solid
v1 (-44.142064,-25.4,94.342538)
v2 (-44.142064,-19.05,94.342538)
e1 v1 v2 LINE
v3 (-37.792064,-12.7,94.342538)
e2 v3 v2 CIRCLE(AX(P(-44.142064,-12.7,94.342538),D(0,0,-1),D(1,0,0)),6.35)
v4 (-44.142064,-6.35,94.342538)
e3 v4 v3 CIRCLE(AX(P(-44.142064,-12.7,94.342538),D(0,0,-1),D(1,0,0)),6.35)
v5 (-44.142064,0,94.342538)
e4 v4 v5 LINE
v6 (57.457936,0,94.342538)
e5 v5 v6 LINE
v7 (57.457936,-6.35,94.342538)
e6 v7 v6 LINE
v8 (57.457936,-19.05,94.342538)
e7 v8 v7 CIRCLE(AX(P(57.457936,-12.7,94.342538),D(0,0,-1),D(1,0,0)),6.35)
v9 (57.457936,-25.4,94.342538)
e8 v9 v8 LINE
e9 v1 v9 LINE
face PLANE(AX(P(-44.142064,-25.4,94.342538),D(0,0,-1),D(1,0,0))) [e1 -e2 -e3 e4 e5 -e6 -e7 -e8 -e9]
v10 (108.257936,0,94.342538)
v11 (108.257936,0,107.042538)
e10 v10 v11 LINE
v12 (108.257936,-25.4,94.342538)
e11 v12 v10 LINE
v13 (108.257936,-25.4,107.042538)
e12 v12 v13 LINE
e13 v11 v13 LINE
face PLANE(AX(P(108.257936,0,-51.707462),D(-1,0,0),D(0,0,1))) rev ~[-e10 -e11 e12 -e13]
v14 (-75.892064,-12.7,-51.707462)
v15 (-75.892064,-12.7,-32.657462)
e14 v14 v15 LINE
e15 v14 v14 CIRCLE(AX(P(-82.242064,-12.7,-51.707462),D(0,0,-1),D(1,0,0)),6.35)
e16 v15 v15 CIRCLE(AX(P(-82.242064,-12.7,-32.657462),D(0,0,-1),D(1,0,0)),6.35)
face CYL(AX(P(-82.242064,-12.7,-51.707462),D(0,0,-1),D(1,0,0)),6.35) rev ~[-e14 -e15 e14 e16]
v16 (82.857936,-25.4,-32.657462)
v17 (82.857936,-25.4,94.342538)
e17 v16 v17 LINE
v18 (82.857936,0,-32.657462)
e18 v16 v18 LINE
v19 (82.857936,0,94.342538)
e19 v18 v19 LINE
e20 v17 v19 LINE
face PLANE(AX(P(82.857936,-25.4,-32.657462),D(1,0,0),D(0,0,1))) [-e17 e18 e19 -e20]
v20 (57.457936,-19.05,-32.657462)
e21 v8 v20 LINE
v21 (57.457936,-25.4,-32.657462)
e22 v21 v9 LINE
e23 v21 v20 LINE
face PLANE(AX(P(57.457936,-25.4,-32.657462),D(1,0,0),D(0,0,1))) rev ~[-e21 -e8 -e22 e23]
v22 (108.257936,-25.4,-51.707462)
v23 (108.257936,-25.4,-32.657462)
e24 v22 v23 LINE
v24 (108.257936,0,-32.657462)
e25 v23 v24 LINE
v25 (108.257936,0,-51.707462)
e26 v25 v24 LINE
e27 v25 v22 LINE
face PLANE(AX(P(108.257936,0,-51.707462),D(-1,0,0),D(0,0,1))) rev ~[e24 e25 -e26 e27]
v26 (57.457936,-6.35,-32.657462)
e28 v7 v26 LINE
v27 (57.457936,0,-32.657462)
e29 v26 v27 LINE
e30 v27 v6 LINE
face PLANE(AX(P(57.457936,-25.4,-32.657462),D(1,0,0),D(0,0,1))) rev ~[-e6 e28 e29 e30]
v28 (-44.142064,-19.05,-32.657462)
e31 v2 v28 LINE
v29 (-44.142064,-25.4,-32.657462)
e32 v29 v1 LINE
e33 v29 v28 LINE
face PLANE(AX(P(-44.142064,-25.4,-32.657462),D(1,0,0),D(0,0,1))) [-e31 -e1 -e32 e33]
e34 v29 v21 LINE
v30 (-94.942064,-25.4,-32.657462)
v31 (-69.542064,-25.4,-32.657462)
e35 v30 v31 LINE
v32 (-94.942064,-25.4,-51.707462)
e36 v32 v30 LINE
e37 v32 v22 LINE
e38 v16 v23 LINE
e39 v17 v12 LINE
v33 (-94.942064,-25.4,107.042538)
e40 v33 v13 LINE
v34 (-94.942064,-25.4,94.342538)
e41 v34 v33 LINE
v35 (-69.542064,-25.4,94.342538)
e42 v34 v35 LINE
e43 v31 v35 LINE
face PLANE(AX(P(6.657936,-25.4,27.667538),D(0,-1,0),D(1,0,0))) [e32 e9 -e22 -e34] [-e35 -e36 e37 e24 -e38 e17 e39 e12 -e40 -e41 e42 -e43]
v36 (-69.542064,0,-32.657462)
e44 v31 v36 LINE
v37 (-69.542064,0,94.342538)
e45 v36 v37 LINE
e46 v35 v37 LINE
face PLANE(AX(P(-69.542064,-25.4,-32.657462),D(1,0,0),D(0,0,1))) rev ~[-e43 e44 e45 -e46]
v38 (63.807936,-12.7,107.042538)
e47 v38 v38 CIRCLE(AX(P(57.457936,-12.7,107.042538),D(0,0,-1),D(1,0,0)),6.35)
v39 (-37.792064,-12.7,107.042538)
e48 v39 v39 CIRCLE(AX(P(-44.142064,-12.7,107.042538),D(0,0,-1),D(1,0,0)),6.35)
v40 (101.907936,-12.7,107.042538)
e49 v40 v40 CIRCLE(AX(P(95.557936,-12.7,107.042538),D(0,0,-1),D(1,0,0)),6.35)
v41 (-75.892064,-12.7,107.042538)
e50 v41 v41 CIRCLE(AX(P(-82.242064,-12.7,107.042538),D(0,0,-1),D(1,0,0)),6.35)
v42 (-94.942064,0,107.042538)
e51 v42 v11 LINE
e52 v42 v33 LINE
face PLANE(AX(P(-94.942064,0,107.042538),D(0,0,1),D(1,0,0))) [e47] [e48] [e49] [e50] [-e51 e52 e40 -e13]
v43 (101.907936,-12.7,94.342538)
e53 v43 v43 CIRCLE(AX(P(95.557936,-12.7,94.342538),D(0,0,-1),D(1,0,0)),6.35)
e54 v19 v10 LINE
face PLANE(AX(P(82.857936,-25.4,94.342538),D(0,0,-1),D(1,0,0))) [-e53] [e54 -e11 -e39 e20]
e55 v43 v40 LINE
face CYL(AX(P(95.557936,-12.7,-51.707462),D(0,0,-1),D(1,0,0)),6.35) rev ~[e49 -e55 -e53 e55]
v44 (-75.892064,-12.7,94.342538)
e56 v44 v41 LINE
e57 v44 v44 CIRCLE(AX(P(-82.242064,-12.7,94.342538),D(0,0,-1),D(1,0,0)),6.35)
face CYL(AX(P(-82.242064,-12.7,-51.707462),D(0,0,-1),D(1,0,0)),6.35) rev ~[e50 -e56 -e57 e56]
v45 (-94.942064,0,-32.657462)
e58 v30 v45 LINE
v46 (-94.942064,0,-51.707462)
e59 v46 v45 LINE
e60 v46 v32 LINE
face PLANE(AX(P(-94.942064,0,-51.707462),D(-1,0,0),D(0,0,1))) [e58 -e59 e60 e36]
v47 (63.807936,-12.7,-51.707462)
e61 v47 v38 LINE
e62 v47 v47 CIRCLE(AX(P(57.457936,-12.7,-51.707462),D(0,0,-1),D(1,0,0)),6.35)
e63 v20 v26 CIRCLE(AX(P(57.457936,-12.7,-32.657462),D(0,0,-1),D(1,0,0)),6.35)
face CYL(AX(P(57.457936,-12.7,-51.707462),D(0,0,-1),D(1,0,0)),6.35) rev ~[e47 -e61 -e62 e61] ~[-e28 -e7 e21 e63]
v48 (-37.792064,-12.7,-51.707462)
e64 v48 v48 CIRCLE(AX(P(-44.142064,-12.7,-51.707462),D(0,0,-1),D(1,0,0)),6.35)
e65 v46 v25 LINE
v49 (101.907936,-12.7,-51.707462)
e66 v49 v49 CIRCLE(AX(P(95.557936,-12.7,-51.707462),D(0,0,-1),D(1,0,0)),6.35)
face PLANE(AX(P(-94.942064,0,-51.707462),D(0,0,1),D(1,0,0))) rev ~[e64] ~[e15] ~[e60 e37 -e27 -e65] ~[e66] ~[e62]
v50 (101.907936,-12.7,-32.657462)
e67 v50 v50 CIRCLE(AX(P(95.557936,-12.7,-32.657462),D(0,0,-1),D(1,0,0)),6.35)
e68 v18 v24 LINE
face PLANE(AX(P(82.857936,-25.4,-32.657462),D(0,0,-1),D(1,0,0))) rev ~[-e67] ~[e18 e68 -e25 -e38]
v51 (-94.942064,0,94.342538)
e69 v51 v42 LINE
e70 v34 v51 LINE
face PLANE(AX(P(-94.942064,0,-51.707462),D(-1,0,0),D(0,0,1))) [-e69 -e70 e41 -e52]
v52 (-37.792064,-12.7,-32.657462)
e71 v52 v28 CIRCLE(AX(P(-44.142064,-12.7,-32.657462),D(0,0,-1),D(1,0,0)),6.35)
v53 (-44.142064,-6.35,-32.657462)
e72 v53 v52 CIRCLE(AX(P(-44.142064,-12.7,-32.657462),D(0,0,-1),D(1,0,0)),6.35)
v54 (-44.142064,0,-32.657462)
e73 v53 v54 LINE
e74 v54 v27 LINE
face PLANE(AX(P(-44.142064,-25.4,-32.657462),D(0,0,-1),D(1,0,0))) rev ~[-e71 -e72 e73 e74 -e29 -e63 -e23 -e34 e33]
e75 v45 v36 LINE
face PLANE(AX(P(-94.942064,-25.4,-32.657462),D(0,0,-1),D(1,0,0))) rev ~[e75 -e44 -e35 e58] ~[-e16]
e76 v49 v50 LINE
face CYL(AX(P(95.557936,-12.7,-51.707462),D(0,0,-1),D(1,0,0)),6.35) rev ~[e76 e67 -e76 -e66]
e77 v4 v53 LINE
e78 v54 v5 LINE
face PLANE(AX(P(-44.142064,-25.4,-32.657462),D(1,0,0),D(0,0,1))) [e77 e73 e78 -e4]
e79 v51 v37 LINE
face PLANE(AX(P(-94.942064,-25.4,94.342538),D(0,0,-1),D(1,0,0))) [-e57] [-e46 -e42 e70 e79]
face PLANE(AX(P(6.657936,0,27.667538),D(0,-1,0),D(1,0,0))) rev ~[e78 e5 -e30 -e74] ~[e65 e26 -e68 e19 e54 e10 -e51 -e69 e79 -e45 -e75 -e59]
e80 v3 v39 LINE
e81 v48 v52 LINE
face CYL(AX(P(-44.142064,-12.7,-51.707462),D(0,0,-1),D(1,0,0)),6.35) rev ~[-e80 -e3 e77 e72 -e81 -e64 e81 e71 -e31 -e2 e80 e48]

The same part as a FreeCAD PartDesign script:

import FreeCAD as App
import Part
import Sketcher
Q = App.Units.Quantity


def add_polygon(sketch, points):
    """Adds a closed chain of lines whose ends are joined by coincident constraints."""
    first, n = sketch.GeometryCount, len(points)
    for a, b in zip(points, points[1:] + points[:1]):
        sketch.addGeometry(Part.LineSegment(App.Vector(*a, 0), App.Vector(*b, 0)), False)
    for i in range(n):
        sketch.addConstraint(Sketcher.Constraint("Coincident", first + i, 2, first + (i + 1) % n, 1))

doc = App.newDocument("Part")
body = doc.addObject("PartDesign::Body", "Body")

# Sketch on XZ plane
sketch1 = doc.addObject("Sketcher::SketchObject", "Sketch")
body.addObject(sketch1)
sketch1.AttachmentSupport = (doc.XZ_Plane, [""])
sketch1.MapMode = "FlatFace"
add_polygon(sketch1, [(-94.942064, 107.042538), (-94.942064, -51.707462), (108.257936, -51.707462), (108.257936, 107.042538)])  # lines 0-3
sketch1.addConstraint([
    Sketcher.Constraint("Vertical", 0),
    Sketcher.Constraint("Horizontal", 1),
    Sketcher.Constraint("Vertical", 2),
    Sketcher.Constraint("Horizontal", 3),
    Sketcher.Constraint("DistanceX", 1, 1, 1, 2, Q("8 in")),
    Sketcher.Constraint("DistanceY", 0, 2, 0, 1, Q("6.25 in")),
    Sketcher.Constraint("DistanceX", 0, 2, -1, 1, 94.942064),
    Sketcher.Constraint("DistanceY", 0, 2, -1, 1, 51.707462),
])
pad1 = doc.addObject("PartDesign::Pad", "Pad")
body.addObject(pad1)
pad1.Profile = sketch1
pad1.Length = Q("1 in")

# Sketch on XZ plane
sketch2 = doc.addObject("Sketcher::SketchObject", "Sketch001")
body.addObject(sketch2)
sketch2.AttachmentSupport = (doc.XZ_Plane, [""])
sketch2.MapMode = "FlatFace"
sketch2.AttachmentOffset = App.Placement(App.Vector(0, 0, 1 * 25.4), App.Rotation())
add_polygon(sketch2, [(-94.942064, 94.342538), (-94.942064, -32.657462), (-69.542064, -32.657462), (-69.542064, 94.342538)])  # lines 0-3
add_polygon(sketch2, [(82.857936, 94.342538), (82.857936, -32.657462), (108.257936, -32.657462), (108.257936, 94.342538)])  # lines 4-7
sketch2.addConstraint([
    Sketcher.Constraint("Vertical", 0),
    Sketcher.Constraint("Horizontal", 1),
    Sketcher.Constraint("Vertical", 2),
    Sketcher.Constraint("Horizontal", 3),
    Sketcher.Constraint("Vertical", 4),
    Sketcher.Constraint("Horizontal", 5),
    Sketcher.Constraint("Vertical", 6),
    Sketcher.Constraint("Horizontal", 7),
    Sketcher.Constraint("Horizontal", 1, 2, 4, 2),
    Sketcher.Constraint("Horizontal", 3, 2, 6, 2),
    Sketcher.Constraint("Equal", 3, 5),
    Sketcher.Constraint("DistanceX", 1, 1, 1, 2, Q("1 in")),
    Sketcher.Constraint("DistanceY", 0, 2, 0, 1, Q("5 in")),
    Sketcher.Constraint("DistanceX", 1, 2, 4, 2, Q("6 in")),
    Sketcher.Constraint("DistanceY", -1, 1, 2, 2, 94.342538),
    Sketcher.Constraint("DistanceX", 0, 2, -1, 1, 94.942064),
])
pocket1 = doc.addObject("PartDesign::Pocket", "Pocket")
body.addObject(pocket1)
pocket1.Profile = sketch2
pocket1.Length = Q("1 in")

# Sketch on XY plane
sketch3 = doc.addObject("Sketcher::SketchObject", "Sketch002")
body.addObject(sketch3)
sketch3.AttachmentSupport = (doc.XY_Plane, [""])
sketch3.MapMode = "FlatFace"
sketch3.AttachmentOffset = App.Placement(App.Vector(0, 0, -51.707462), App.Rotation())
sketch3.addGeometry([
    Part.Circle(App.Vector(-44.142064, -12.7, 0), App.Vector(0, 0, 1), 6.35),
    Part.Circle(App.Vector(57.457936, -12.7, 0), App.Vector(0, 0, 1), 6.35),
], False)
sketch3.addConstraint([
    Sketcher.Constraint("Equal", 0, 1),
    Sketcher.Constraint("Horizontal", 0, 3, 1, 3),
    Sketcher.Constraint("Diameter", 0, Q("0.5 in")),
    Sketcher.Constraint("DistanceX", 0, 3, 1, 3, Q("4 in")),
    Sketcher.Constraint("DistanceY", 0, 3, -1, 1, Q("0.5 in")),
    Sketcher.Constraint("DistanceX", 0, 3, -1, 1, 44.142064),
])
pocket2 = doc.addObject("PartDesign::Pocket", "Pocket001")
body.addObject(pocket2)
pocket2.Profile = sketch3
pocket2.Length = Q("7 in")
pocket2.Reversed = True

# Sketch on XY plane
sketch4 = doc.addObject("Sketcher::SketchObject", "Sketch003")
body.addObject(sketch4)
sketch4.AttachmentSupport = (doc.XY_Plane, [""])
sketch4.MapMode = "FlatFace"
sketch4.AttachmentOffset = App.Placement(App.Vector(0, 0, -51.707462), App.Rotation())
sketch4.addGeometry([
    Part.Circle(App.Vector(-82.242064, -12.7, 0), App.Vector(0, 0, 1), 6.35),
    Part.Circle(App.Vector(95.557936, -12.7, 0), App.Vector(0, 0, 1), 6.35),
], False)
sketch4.addConstraint([
    Sketcher.Constraint("Equal", 0, 1),
    Sketcher.Constraint("Horizontal", 0, 3, 1, 3),
    Sketcher.Constraint("Diameter", 0, Q("0.5 in")),
    Sketcher.Constraint("DistanceX", 0, 3, 1, 3, Q("7 in")),
    Sketcher.Constraint("DistanceY", 0, 3, -1, 1, Q("0.5 in")),
    Sketcher.Constraint("DistanceX", 0, 3, -1, 1, 82.242064),
])
pocket3 = doc.addObject("PartDesign::Pocket", "Pocket002")
body.addObject(pocket3)
pocket3.Profile = sketch4
pocket3.Length = Q("7 in")
pocket3.Reversed = True

# Sketch on XZ plane
sketch5 = doc.addObject("Sketcher::SketchObject", "Sketch004")
body.addObject(sketch5)
sketch5.AttachmentSupport = (doc.XZ_Plane, [""])
sketch5.MapMode = "FlatFace"
sketch5.AttachmentOffset = App.Placement(App.Vector(0, 0, 1 * 25.4), App.Rotation())
add_polygon(sketch5, [(-44.142064, 94.342538), (-44.142064, -32.657462), (57.457936, -32.657462), (57.457936, 94.342538)])  # lines 0-3
sketch5.addConstraint([
    Sketcher.Constraint("Vertical", 0),
    Sketcher.Constraint("Horizontal", 1),
    Sketcher.Constraint("Vertical", 2),
    Sketcher.Constraint("Horizontal", 3),
    Sketcher.Constraint("DistanceX", 1, 1, 1, 2, Q("4 in")),
    Sketcher.Constraint("DistanceY", 0, 2, 0, 1, Q("5 in")),
    Sketcher.Constraint("DistanceY", -1, 1, 2, 2, 94.342538),
    Sketcher.Constraint("DistanceX", 0, 2, -1, 1, 44.142064),
])
pocket4 = doc.addObject("PartDesign::Pocket", "Pocket003")
body.addObject(pocket4)
pocket4.Profile = sketch5
pocket4.Length = Q("1 in")

doc.recompute()
